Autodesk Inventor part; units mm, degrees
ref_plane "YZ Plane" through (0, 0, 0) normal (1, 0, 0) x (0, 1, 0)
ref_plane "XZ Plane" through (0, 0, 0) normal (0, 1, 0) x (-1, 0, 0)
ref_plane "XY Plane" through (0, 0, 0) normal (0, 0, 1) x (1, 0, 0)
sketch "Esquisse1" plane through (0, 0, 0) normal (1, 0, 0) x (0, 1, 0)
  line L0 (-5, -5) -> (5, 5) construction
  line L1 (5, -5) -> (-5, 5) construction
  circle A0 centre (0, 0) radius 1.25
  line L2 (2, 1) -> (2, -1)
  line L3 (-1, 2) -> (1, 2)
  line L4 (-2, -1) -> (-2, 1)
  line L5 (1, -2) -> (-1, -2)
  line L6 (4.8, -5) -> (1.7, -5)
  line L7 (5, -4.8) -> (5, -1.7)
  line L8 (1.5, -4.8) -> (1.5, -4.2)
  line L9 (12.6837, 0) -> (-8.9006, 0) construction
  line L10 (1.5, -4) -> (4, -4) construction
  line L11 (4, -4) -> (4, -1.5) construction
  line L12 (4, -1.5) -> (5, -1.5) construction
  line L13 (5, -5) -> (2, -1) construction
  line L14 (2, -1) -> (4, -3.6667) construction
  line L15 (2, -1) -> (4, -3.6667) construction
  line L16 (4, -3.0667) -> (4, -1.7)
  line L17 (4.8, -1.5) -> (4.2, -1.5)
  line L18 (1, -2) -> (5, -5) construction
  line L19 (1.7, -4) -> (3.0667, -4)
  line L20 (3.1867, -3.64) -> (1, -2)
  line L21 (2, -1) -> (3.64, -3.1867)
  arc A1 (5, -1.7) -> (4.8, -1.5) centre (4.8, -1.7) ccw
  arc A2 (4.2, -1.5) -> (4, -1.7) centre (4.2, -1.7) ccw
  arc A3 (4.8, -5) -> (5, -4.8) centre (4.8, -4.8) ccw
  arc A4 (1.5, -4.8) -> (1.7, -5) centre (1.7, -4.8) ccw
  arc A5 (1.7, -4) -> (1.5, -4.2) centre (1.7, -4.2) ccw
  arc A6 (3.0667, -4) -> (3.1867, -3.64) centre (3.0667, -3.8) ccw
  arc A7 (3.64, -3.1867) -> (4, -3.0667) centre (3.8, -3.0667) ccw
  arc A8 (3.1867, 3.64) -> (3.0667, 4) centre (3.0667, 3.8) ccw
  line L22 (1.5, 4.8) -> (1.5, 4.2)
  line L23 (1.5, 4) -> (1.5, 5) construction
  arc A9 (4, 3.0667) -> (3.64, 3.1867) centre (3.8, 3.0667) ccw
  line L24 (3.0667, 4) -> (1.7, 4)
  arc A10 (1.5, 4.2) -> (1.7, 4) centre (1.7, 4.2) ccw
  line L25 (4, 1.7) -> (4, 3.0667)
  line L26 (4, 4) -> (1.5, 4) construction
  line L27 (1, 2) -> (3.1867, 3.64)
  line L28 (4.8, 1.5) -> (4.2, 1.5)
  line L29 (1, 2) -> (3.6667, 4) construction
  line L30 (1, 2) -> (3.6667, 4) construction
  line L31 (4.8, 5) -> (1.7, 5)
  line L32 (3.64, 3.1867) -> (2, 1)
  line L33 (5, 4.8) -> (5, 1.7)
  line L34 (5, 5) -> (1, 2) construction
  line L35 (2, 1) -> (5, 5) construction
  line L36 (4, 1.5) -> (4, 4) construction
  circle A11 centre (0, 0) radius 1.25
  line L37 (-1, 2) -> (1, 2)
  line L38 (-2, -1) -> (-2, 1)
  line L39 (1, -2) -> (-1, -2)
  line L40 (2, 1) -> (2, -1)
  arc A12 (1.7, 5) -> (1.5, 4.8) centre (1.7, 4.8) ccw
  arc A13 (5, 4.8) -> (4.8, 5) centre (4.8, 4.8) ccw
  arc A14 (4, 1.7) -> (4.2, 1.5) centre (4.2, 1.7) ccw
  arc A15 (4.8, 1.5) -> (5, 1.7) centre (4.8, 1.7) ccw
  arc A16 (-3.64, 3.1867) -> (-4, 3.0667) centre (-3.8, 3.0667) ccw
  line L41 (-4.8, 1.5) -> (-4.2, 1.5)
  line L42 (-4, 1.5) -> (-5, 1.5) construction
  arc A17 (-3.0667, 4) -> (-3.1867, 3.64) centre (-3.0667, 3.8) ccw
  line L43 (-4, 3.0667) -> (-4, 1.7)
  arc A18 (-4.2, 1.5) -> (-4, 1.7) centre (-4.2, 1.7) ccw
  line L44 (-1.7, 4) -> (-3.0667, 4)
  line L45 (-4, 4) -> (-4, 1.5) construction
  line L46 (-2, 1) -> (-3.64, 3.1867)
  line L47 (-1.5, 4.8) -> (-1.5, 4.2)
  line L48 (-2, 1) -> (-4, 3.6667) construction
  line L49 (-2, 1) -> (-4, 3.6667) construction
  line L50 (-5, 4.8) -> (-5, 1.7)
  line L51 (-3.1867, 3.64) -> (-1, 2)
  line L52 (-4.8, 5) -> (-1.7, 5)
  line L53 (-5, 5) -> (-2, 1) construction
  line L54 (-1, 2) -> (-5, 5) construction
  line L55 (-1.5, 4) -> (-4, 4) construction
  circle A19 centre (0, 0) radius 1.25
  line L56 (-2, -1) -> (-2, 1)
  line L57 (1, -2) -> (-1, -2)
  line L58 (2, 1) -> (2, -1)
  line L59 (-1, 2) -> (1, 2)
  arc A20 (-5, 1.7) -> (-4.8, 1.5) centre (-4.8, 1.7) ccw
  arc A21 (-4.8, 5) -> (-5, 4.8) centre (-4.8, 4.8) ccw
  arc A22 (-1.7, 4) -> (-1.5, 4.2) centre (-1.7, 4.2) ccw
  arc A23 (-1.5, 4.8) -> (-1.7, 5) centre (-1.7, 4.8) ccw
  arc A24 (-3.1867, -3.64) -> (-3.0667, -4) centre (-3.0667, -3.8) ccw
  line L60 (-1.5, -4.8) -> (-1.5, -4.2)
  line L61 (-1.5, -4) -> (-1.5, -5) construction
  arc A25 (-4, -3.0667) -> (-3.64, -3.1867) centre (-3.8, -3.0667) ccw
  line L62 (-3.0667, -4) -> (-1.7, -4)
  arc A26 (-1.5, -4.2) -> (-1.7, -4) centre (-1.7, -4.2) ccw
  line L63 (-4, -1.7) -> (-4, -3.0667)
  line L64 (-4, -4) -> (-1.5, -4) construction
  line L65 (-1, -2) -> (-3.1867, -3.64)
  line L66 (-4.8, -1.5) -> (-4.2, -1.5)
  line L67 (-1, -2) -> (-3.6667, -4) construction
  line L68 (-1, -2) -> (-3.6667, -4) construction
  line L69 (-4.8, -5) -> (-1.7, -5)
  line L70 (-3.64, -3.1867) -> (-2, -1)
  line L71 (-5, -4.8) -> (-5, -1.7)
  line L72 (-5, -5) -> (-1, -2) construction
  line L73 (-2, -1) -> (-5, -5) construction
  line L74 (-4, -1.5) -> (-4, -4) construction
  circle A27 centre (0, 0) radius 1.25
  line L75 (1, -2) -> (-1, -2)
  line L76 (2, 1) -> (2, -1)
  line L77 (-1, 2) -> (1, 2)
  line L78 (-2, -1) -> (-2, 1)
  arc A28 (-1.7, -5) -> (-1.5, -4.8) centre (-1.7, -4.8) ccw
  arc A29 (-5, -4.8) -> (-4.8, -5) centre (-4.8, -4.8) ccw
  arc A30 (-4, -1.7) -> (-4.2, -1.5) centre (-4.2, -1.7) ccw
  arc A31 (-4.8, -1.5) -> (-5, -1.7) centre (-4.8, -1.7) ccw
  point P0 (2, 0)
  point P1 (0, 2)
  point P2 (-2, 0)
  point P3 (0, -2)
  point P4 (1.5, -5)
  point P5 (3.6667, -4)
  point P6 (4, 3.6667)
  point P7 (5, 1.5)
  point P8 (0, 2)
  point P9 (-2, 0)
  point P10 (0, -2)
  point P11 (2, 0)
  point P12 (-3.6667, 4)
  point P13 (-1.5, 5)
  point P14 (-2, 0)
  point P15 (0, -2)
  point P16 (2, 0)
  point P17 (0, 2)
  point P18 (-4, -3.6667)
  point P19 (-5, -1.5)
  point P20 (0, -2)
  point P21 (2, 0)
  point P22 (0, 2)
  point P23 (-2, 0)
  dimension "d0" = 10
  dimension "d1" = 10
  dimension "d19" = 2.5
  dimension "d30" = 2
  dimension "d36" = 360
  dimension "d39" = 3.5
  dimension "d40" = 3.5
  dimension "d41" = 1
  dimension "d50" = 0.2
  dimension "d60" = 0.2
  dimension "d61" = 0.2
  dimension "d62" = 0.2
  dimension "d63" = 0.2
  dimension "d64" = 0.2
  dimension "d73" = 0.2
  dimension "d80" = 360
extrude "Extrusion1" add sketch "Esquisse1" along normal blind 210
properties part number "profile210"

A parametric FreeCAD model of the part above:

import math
import FreeCAD as App
import Part
import Sketcher

V = App.Vector
Q = App.Units.Quantity

doc = App.newDocument("Part")
params = doc.addObject("Spreadsheet::Sheet", "Params")
for row, (alias, value) in enumerate([
    ("sketch1_diameter", "2.5 mm"),
    ("sketch1_radius", "0.2 mm"),
    ("sketch1_width", "2 mm"),
    ("sketch1_width2", "0.6 mm"),
    ("sketch1_width3", "3.1 mm"),
    ("pad1_length", "210 mm"),
], start=1):
    params.set(f"A{row}", alias)
    params.set(f"B{row}", "=" + value)
    params.setAlias(f"B{row}", alias)

body = doc.addObject("PartDesign::Body", "Body")

# Sketch on YZ plane
sketch1 = body.newObject("Sketcher::SketchObject", "Sketch")
sketch1.AttachmentSupport = (doc.getObject("YZ_Plane"), [""])
sketch1.MapMode = "FlatFace"
sketch1.addGeometry(Part.LineSegment(V(2, -1, 0), V(2, 1, 0)), False)
sketch1.addGeometry(Part.LineSegment(V(2, 1, 0), V(3.64, 3.19, 0)), False)
sketch1.addGeometry(Part.ArcOfCircle(Part.Circle(V(3.8, 3.07, 0), V(0, 0, 1), 0.2), math.radians(0), math.radians(143)), False)
sketch1.addGeometry(Part.LineSegment(V(4, 3.07, 0), V(4, 1.7, 0)), False)
sketch1.addGeometry(Part.ArcOfCircle(Part.Circle(V(4.2, 1.7, 0), V(0, 0, 1), 0.2), math.radians(180), math.radians(270)), False)
sketch1.addGeometry(Part.LineSegment(V(4.2, 1.5, 0), V(4.8, 1.5, 0)), False)
sketch1.addGeometry(Part.ArcOfCircle(Part.Circle(V(4.8, 1.7, 0), V(0, 0, 1), 0.2), math.radians(-90), math.radians(0)), False)
sketch1.addGeometry(Part.LineSegment(V(5, 1.7, 0), V(5, 4.8, 0)), False)
sketch1.addGeometry(Part.ArcOfCircle(Part.Circle(V(4.8, 4.8, 0), V(0, 0, 1), 0.2), math.radians(0), math.radians(90)), False)
sketch1.addGeometry(Part.LineSegment(V(4.8, 5, 0), V(1.7, 5, 0)), False)
sketch1.addGeometry(Part.ArcOfCircle(Part.Circle(V(1.7, 4.8, 0), V(0, 0, 1), 0.2), math.radians(90), math.radians(180)), False)
sketch1.addGeometry(Part.LineSegment(V(1.5, 4.8, 0), V(1.5, 4.2, 0)), False)
sketch1.addGeometry(Part.ArcOfCircle(Part.Circle(V(1.7, 4.2, 0), V(0, 0, 1), 0.2), math.radians(180), math.radians(270)), False)
sketch1.addGeometry(Part.LineSegment(V(1.7, 4, 0), V(3.07, 4, 0)), False)
sketch1.addGeometry(Part.ArcOfCircle(Part.Circle(V(3.07, 3.8, 0), V(0, 0, 1), 0.2), math.radians(-53), math.radians(90)), False)
sketch1.addGeometry(Part.LineSegment(V(3.19, 3.64, 0), V(1, 2, 0)), False)
sketch1.addGeometry(Part.LineSegment(V(1, 2, 0), V(-1, 2, 0)), False)
sketch1.addGeometry(Part.LineSegment(V(-1, 2, 0), V(-3.19, 3.64, 0)), False)
sketch1.addGeometry(Part.ArcOfCircle(Part.Circle(V(-3.07, 3.8, 0), V(0, 0, 1), 0.2), math.radians(90), math.radians(233)), False)
sketch1.addGeometry(Part.LineSegment(V(-3.07, 4, 0), V(-1.7, 4, 0)), False)
sketch1.addGeometry(Part.ArcOfCircle(Part.Circle(V(-1.7, 4.2, 0), V(0, 0, 1), 0.2), math.radians(-90), math.radians(0)), False)
sketch1.addGeometry(Part.LineSegment(V(-1.5, 4.2, 0), V(-1.5, 4.8, 0)), False)
sketch1.addGeometry(Part.ArcOfCircle(Part.Circle(V(-1.7, 4.8, 0), V(0, 0, 1), 0.2), math.radians(0), math.radians(90)), False)
sketch1.addGeometry(Part.LineSegment(V(-1.7, 5, 0), V(-4.8, 5, 0)), False)
sketch1.addGeometry(Part.ArcOfCircle(Part.Circle(V(-4.8, 4.8, 0), V(0, 0, 1), 0.2), math.radians(90), math.radians(180)), False)
sketch1.addGeometry(Part.LineSegment(V(-5, 4.8, 0), V(-5, 1.7, 0)), False)
sketch1.addGeometry(Part.ArcOfCircle(Part.Circle(V(-4.8, 1.7, 0), V(0, 0, 1), 0.2), math.radians(180), math.radians(270)), False)
sketch1.addGeometry(Part.LineSegment(V(-4.8, 1.5, 0), V(-4.2, 1.5, 0)), False)
sketch1.addGeometry(Part.ArcOfCircle(Part.Circle(V(-4.2, 1.7, 0), V(0, 0, 1), 0.2), math.radians(-90), math.radians(0)), False)
sketch1.addGeometry(Part.LineSegment(V(-4, 1.7, 0), V(-4, 3.07, 0)), False)
sketch1.addGeometry(Part.ArcOfCircle(Part.Circle(V(-3.8, 3.07, 0), V(0, 0, 1), 0.2), math.radians(37), math.radians(180)), False)
sketch1.addGeometry(Part.LineSegment(V(-3.64, 3.19, 0), V(-2, 1, 0)), False)
sketch1.addGeometry(Part.LineSegment(V(-2, 1, 0), V(-2, -1, 0)), False)
sketch1.addGeometry(Part.LineSegment(V(-2, -1, 0), V(-3.64, -3.19, 0)), False)
sketch1.addGeometry(Part.ArcOfCircle(Part.Circle(V(-3.8, -3.07, 0), V(0, 0, 1), 0.2), math.radians(180), math.radians(323)), False)
sketch1.addGeometry(Part.LineSegment(V(-4, -3.07, 0), V(-4, -1.7, 0)), False)
sketch1.addGeometry(Part.ArcOfCircle(Part.Circle(V(-4.2, -1.7, 0), V(0, 0, 1), 0.2), math.radians(0), math.radians(90)), False)
sketch1.addGeometry(Part.LineSegment(V(-4.2, -1.5, 0), V(-4.8, -1.5, 0)), False)
sketch1.addGeometry(Part.ArcOfCircle(Part.Circle(V(-4.8, -1.7, 0), V(0, 0, 1), 0.2), math.radians(90), math.radians(180)), False)
sketch1.addGeometry(Part.LineSegment(V(-5, -1.7, 0), V(-5, -4.8, 0)), False)
sketch1.addGeometry(Part.ArcOfCircle(Part.Circle(V(-4.8, -4.8, 0), V(0, 0, 1), 0.2), math.radians(180), math.radians(270)), False)
sketch1.addGeometry(Part.LineSegment(V(-4.8, -5, 0), V(-1.7, -5, 0)), False)
sketch1.addGeometry(Part.ArcOfCircle(Part.Circle(V(-1.7, -4.8, 0), V(0, 0, 1), 0.2), math.radians(-90), math.radians(0)), False)
sketch1.addGeometry(Part.LineSegment(V(-1.5, -4.8, 0), V(-1.5, -4.2, 0)), False)
sketch1.addGeometry(Part.ArcOfCircle(Part.Circle(V(-1.7, -4.2, 0), V(0, 0, 1), 0.2), math.radians(0), math.radians(90)), False)
sketch1.addGeometry(Part.LineSegment(V(-1.7, -4, 0), V(-3.07, -4, 0)), False)
sketch1.addGeometry(Part.ArcOfCircle(Part.Circle(V(-3.07, -3.8, 0), V(0, 0, 1), 0.2), math.radians(127), math.radians(270)), False)
sketch1.addGeometry(Part.LineSegment(V(-3.19, -3.64, 0), V(-1, -2, 0)), False)
sketch1.addGeometry(Part.LineSegment(V(-1, -2, 0), V(1, -2, 0)), False)
sketch1.addGeometry(Part.LineSegment(V(1, -2, 0), V(3.19, -3.64, 0)), False)
sketch1.addGeometry(Part.ArcOfCircle(Part.Circle(V(3.07, -3.8, 0), V(0, 0, 1), 0.2), math.radians(-90), math.radians(53)), False)
sketch1.addGeometry(Part.LineSegment(V(3.07, -4, 0), V(1.7, -4, 0)), False)
sketch1.addGeometry(Part.ArcOfCircle(Part.Circle(V(1.7, -4.2, 0), V(0, 0, 1), 0.2), math.radians(90), math.radians(180)), False)
sketch1.addGeometry(Part.LineSegment(V(1.5, -4.2, 0), V(1.5, -4.8, 0)), False)
sketch1.addGeometry(Part.ArcOfCircle(Part.Circle(V(1.7, -4.8, 0), V(0, 0, 1), 0.2), math.radians(180), math.radians(270)), False)
sketch1.addGeometry(Part.LineSegment(V(1.7, -5, 0), V(4.8, -5, 0)), False)
sketch1.addGeometry(Part.ArcOfCircle(Part.Circle(V(4.8, -4.8, 0), V(0, 0, 1), 0.2), math.radians(-90), math.radians(0)), False)
sketch1.addGeometry(Part.LineSegment(V(5, -4.8, 0), V(5, -1.7, 0)), False)
sketch1.addGeometry(Part.ArcOfCircle(Part.Circle(V(4.8, -1.7, 0), V(0, 0, 1), 0.2), math.radians(0), math.radians(90)), False)
sketch1.addGeometry(Part.LineSegment(V(4.8, -1.5, 0), V(4.2, -1.5, 0)), False)
sketch1.addGeometry(Part.ArcOfCircle(Part.Circle(V(4.2, -1.7, 0), V(0, 0, 1), 0.2), math.radians(90), math.radians(180)), False)
sketch1.addGeometry(Part.LineSegment(V(4, -1.7, 0), V(4, -3.07, 0)), False)
sketch1.addGeometry(Part.ArcOfCircle(Part.Circle(V(3.8, -3.07, 0), V(0, 0, 1), 0.2), math.radians(-143), math.radians(0)), False)
sketch1.addGeometry(Part.LineSegment(V(3.64, -3.19, 0), V(2, -1, 0)), False)
sketch1.addGeometry(Part.Circle(V(0, 0, 0), V(0, 0, 1), 1.25), False)
sketch1.addConstraint(Sketcher.Constraint("Coincident", 0, 2, 1, 1))
sketch1.addConstraint(Sketcher.Constraint("Tangent", 1, 2, 2, 2))
sketch1.addConstraint(Sketcher.Constraint("Tangent", 2, 1, 3, 1))
sketch1.addConstraint(Sketcher.Constraint("Tangent", 3, 2, 4, 1))
sketch1.addConstraint(Sketcher.Constraint("Tangent", 4, 2, 5, 1))
sketch1.addConstraint(Sketcher.Constraint("Tangent", 5, 2, 6, 1))
sketch1.addConstraint(Sketcher.Constraint("Tangent", 6, 2, 7, 1))
sketch1.addConstraint(Sketcher.Constraint("Tangent", 7, 2, 8, 1))
sketch1.addConstraint(Sketcher.Constraint("Tangent", 8, 2, 9, 1))
sketch1.addConstraint(Sketcher.Constraint("Tangent", 9, 2, 10, 1))
sketch1.addConstraint(Sketcher.Constraint("Tangent", 10, 2, 11, 1))
sketch1.addConstraint(Sketcher.Constraint("Tangent", 11, 2, 12, 1))
sketch1.addConstraint(Sketcher.Constraint("Tangent", 12, 2, 13, 1))
sketch1.addConstraint(Sketcher.Constraint("Tangent", 13, 2, 14, 2))
sketch1.addConstraint(Sketcher.Constraint("Tangent", 14, 1, 15, 1))
sketch1.addConstraint(Sketcher.Constraint("Coincident", 15, 2, 16, 1))
sketch1.addConstraint(Sketcher.Constraint("Coincident", 16, 2, 17, 1))
sketch1.addConstraint(Sketcher.Constraint("Tangent", 17, 2, 18, 2))
sketch1.addConstraint(Sketcher.Constraint("Tangent", 18, 1, 19, 1))
sketch1.addConstraint(Sketcher.Constraint("Tangent", 19, 2, 20, 1))
sketch1.addConstraint(Sketcher.Constraint("Tangent", 20, 2, 21, 1))
sketch1.addConstraint(Sketcher.Constraint("Tangent", 21, 2, 22, 1))
sketch1.addConstraint(Sketcher.Constraint("Tangent", 22, 2, 23, 1))
sketch1.addConstraint(Sketcher.Constraint("Tangent", 23, 2, 24, 1))
sketch1.addConstraint(Sketcher.Constraint("Tangent", 24, 2, 25, 1))
sketch1.addConstraint(Sketcher.Constraint("Tangent", 25, 2, 26, 1))
sketch1.addConstraint(Sketcher.Constraint("Tangent", 26, 2, 27, 1))
sketch1.addConstraint(Sketcher.Constraint("Tangent", 27, 2, 28, 1))
sketch1.addConstraint(Sketcher.Constraint("Tangent", 28, 2, 29, 1))
sketch1.addConstraint(Sketcher.Constraint("Tangent", 29, 2, 30, 2))
sketch1.addConstraint(Sketcher.Constraint("Tangent", 30, 1, 31, 1))
sketch1.addConstraint(Sketcher.Constraint("Coincident", 31, 2, 32, 1))
sketch1.addConstraint(Sketcher.Constraint("Coincident", 32, 2, 33, 1))
sketch1.addConstraint(Sketcher.Constraint("Tangent", 33, 2, 34, 2))
sketch1.addConstraint(Sketcher.Constraint("Tangent", 34, 1, 35, 1))
sketch1.addConstraint(Sketcher.Constraint("Tangent", 35, 2, 36, 1))
sketch1.addConstraint(Sketcher.Constraint("Tangent", 36, 2, 37, 1))
sketch1.addConstraint(Sketcher.Constraint("Tangent", 37, 2, 38, 1))
sketch1.addConstraint(Sketcher.Constraint("Tangent", 38, 2, 39, 1))
sketch1.addConstraint(Sketcher.Constraint("Tangent", 39, 2, 40, 1))
sketch1.addConstraint(Sketcher.Constraint("Tangent", 40, 2, 41, 1))
sketch1.addConstraint(Sketcher.Constraint("Tangent", 41, 2, 42, 1))
sketch1.addConstraint(Sketcher.Constraint("Tangent", 42, 2, 43, 1))
sketch1.addConstraint(Sketcher.Constraint("Tangent", 43, 2, 44, 1))
sketch1.addConstraint(Sketcher.Constraint("Tangent", 44, 2, 45, 1))
sketch1.addConstraint(Sketcher.Constraint("Tangent", 45, 2, 46, 2))
sketch1.addConstraint(Sketcher.Constraint("Tangent", 46, 1, 47, 1))
sketch1.addConstraint(Sketcher.Constraint("Coincident", 47, 2, 48, 1))
sketch1.addConstraint(Sketcher.Constraint("Coincident", 48, 2, 49, 1))
sketch1.addConstraint(Sketcher.Constraint("Tangent", 49, 2, 50, 2))
sketch1.addConstraint(Sketcher.Constraint("Tangent", 50, 1, 51, 1))
sketch1.addConstraint(Sketcher.Constraint("Tangent", 51, 2, 52, 1))
sketch1.addConstraint(Sketcher.Constraint("Tangent", 52, 2, 53, 1))
sketch1.addConstraint(Sketcher.Constraint("Tangent", 53, 2, 54, 1))
sketch1.addConstraint(Sketcher.Constraint("Tangent", 54, 2, 55, 1))
sketch1.addConstraint(Sketcher.Constraint("Tangent", 55, 2, 56, 1))
sketch1.addConstraint(Sketcher.Constraint("Tangent", 56, 2, 57, 1))
sketch1.addConstraint(Sketcher.Constraint("Tangent", 57, 2, 58, 1))
sketch1.addConstraint(Sketcher.Constraint("Tangent", 58, 2, 59, 1))
sketch1.addConstraint(Sketcher.Constraint("Tangent", 59, 2, 60, 1))
sketch1.addConstraint(Sketcher.Constraint("Tangent", 60, 2, 61, 1))
sketch1.addConstraint(Sketcher.Constraint("Tangent", 61, 2, 62, 2))
sketch1.addConstraint(Sketcher.Constraint("Tangent", 62, 1, 63, 1))
sketch1.addConstraint(Sketcher.Constraint("Coincident", 63, 2, 0, 1))
sketch1.addConstraint(Sketcher.Constraint("Vertical", 0))
sketch1.addConstraint(Sketcher.Constraint("Vertical", 3))
sketch1.addConstraint(Sketcher.Constraint("Horizontal", 5))
sketch1.addConstraint(Sketcher.Constraint("Vertical", 7))
sketch1.addConstraint(Sketcher.Constraint("Horizontal", 9))
sketch1.addConstraint(Sketcher.Constraint("Vertical", 11))
sketch1.addConstraint(Sketcher.Constraint("Horizontal", 13))
sketch1.addConstraint(Sketcher.Constraint("Horizontal", 16))
sketch1.addConstraint(Sketcher.Constraint("Horizontal", 19))
sketch1.addConstraint(Sketcher.Constraint("Vertical", 21))
sketch1.addConstraint(Sketcher.Constraint("Horizontal", 23))
sketch1.addConstraint(Sketcher.Constraint("Vertical", 25))
sketch1.addConstraint(Sketcher.Constraint("Horizontal", 27))
sketch1.addConstraint(Sketcher.Constraint("Vertical", 29))
sketch1.addConstraint(Sketcher.Constraint("Vertical", 32))
sketch1.addConstraint(Sketcher.Constraint("Vertical", 35))
sketch1.addConstraint(Sketcher.Constraint("Horizontal", 37))
sketch1.addConstraint(Sketcher.Constraint("Vertical", 39))
sketch1.addConstraint(Sketcher.Constraint("Horizontal", 41))
sketch1.addConstraint(Sketcher.Constraint("Vertical", 43))
sketch1.addConstraint(Sketcher.Constraint("Horizontal", 45))
sketch1.addConstraint(Sketcher.Constraint("Horizontal", 48))
sketch1.addConstraint(Sketcher.Constraint("Horizontal", 51))
sketch1.addConstraint(Sketcher.Constraint("Vertical", 53))
sketch1.addConstraint(Sketcher.Constraint("Horizontal", 55))
sketch1.addConstraint(Sketcher.Constraint("Vertical", 57))
sketch1.addConstraint(Sketcher.Constraint("Horizontal", 59))
sketch1.addConstraint(Sketcher.Constraint("Vertical", 61))
sketch1.addConstraint(Sketcher.Constraint("Coincident", 64, 3, -1, 1))
sketch1.addConstraint(Sketcher.Constraint("Equal", 2, 4))
sketch1.addConstraint(Sketcher.Constraint("Equal", 4, 6))
sketch1.addConstraint(Sketcher.Constraint("Equal", 6, 8))
sketch1.addConstraint(Sketcher.Constraint("Equal", 8, 10))
sketch1.addConstraint(Sketcher.Constraint("Equal", 10, 12))
sketch1.addConstraint(Sketcher.Constraint("Equal", 12, 14))
sketch1.addConstraint(Sketcher.Constraint("Equal", 14, 18))
sketch1.addConstraint(Sketcher.Constraint("Equal", 18, 20))
sketch1.addConstraint(Sketcher.Constraint("Equal", 20, 22))
sketch1.addConstraint(Sketcher.Constraint("Equal", 22, 24))
sketch1.addConstraint(Sketcher.Constraint("Equal", 24, 26))
sketch1.addConstraint(Sketcher.Constraint("Equal", 26, 28))
sketch1.addConstraint(Sketcher.Constraint("Equal", 28, 30))
sketch1.addConstraint(Sketcher.Constraint("Equal", 30, 34))
sketch1.addConstraint(Sketcher.Constraint("Equal", 34, 36))
sketch1.addConstraint(Sketcher.Constraint("Equal", 36, 38))
sketch1.addConstraint(Sketcher.Constraint("Equal", 38, 40))
sketch1.addConstraint(Sketcher.Constraint("Equal", 40, 42))
sketch1.addConstraint(Sketcher.Constraint("Equal", 42, 44))
sketch1.addConstraint(Sketcher.Constraint("Equal", 44, 46))
sketch1.addConstraint(Sketcher.Constraint("Equal", 46, 50))
sketch1.addConstraint(Sketcher.Constraint("Equal", 50, 52))
sketch1.addConstraint(Sketcher.Constraint("Equal", 52, 54))
sketch1.addConstraint(Sketcher.Constraint("Equal", 54, 56))
sketch1.addConstraint(Sketcher.Constraint("Equal", 56, 58))
sketch1.addConstraint(Sketcher.Constraint("Equal", 58, 60))
sketch1.addConstraint(Sketcher.Constraint("Equal", 60, 62))
sketch1.addConstraint(Sketcher.Constraint("Symmetric", 2, 3, 34, 3, -1, 1))
sketch1.addConstraint(Sketcher.Constraint("Symmetric", 6, 3, 38, 3, -1, 1))
sketch1.addConstraint(Sketcher.Constraint("Symmetric", 10, 3, 42, 3, -1, 1))
sketch1.addConstraint(Sketcher.Constraint("Symmetric", 14, 3, 46, 3, -1, 1))
sketch1.addConstraint(Sketcher.Constraint("Symmetric", 18, 3, 50, 3, -1, 1))
sketch1.addConstraint(Sketcher.Constraint("Symmetric", 22, 3, 54, 3, -1, 1))
sketch1.addConstraint(Sketcher.Constraint("Symmetric", 26, 3, 58, 3, -1, 1))
sketch1.addConstraint(Sketcher.Constraint("Symmetric", 30, 3, 62, 3, -1, 1))
sketch1.addConstraint(Sketcher.Constraint("Symmetric", 0, 2, 32, 2, -1, 1))
sketch1.addConstraint(Sketcher.Constraint("Symmetric", 15, 2, 47, 2, -1, 1))
sketch1.addConstraint(Sketcher.Constraint("Symmetric", 14, 3, 18, 3, -2))
sketch1.addConstraint(Sketcher.Constraint("Symmetric", 10, 3, 22, 3, -2))
sketch1.addConstraint(Sketcher.Constraint("Symmetric", 6, 3, 26, 3, -2))
sketch1.addConstraint(Sketcher.Constraint("Symmetric", 2, 3, 30, 3, -2))
sketch1.addConstraint(Sketcher.Constraint("Perpendicular", 1, 17))
sketch1.addConstraint(Sketcher.Constraint("Perpendicular", 15, 31))
sketch1.addConstraint(Sketcher.Constraint("Perpendicular", 33, 49))
sketch1.addConstraint(Sketcher.Constraint("Perpendicular", 47, 63))
sketch1.addConstraint(Sketcher.Constraint("Horizontal", 14, 1, 17, 2))
sketch1.addConstraint(Sketcher.Constraint("Equal", 48, 0))
sketch1.addConstraint(Sketcher.Constraint("Equal", 51, 3))
sketch1.addConstraint(Sketcher.Constraint("Equal", 55, 7))
sketch1.addConstraint(Sketcher.Constraint("Equal", 59, 11))
sketch1.addConstraint(Sketcher.Constraint("Equal", 1, 15))
sketch1.addConstraint(Sketcher.Constraint("Diameter", 64, Q("2.5 mm")))
sketch1.addConstraint(Sketcher.Constraint("Radius", 2, Q("0.2 mm")))
sketch1.addConstraint(Sketcher.Constraint("DistanceX", 16, 2, 16, 1, Q("2 mm")))
sketch1.addConstraint(Sketcher.Constraint("DistanceX", -1, 1, 0, 2, Q("2 mm")))
sketch1.addConstraint(Sketcher.Constraint("DistanceX", 5, 1, 5, 2, Q("0.6 mm")))
sketch1.addConstraint(Sketcher.Constraint("DistanceX", 9, 2, 9, 1, Q("3.1 mm")))
sketch1.addConstraint(Sketcher.Constraint("DistanceX", -1, 1, 2, 1, Q("4 mm")))
sketch1.addConstraint(Sketcher.Constraint("Angle", 1, Q("53.1305 deg")))
sketch1.setExpression("Constraints[144]", "Params.sketch1_diameter")
sketch1.setExpression("Constraints[145]", "Params.sketch1_radius")
sketch1.setExpression("Constraints[146]", "Params.sketch1_width")
sketch1.setExpression("Constraints[148]", "Params.sketch1_width2")
sketch1.setExpression("Constraints[149]", "Params.sketch1_width3")
pad1 = body.newObject("PartDesign::Pad", "Pad")
pad1.Profile = sketch1
pad1.setExpression("Length", "Params.pad1_length")

doc.recompute()
